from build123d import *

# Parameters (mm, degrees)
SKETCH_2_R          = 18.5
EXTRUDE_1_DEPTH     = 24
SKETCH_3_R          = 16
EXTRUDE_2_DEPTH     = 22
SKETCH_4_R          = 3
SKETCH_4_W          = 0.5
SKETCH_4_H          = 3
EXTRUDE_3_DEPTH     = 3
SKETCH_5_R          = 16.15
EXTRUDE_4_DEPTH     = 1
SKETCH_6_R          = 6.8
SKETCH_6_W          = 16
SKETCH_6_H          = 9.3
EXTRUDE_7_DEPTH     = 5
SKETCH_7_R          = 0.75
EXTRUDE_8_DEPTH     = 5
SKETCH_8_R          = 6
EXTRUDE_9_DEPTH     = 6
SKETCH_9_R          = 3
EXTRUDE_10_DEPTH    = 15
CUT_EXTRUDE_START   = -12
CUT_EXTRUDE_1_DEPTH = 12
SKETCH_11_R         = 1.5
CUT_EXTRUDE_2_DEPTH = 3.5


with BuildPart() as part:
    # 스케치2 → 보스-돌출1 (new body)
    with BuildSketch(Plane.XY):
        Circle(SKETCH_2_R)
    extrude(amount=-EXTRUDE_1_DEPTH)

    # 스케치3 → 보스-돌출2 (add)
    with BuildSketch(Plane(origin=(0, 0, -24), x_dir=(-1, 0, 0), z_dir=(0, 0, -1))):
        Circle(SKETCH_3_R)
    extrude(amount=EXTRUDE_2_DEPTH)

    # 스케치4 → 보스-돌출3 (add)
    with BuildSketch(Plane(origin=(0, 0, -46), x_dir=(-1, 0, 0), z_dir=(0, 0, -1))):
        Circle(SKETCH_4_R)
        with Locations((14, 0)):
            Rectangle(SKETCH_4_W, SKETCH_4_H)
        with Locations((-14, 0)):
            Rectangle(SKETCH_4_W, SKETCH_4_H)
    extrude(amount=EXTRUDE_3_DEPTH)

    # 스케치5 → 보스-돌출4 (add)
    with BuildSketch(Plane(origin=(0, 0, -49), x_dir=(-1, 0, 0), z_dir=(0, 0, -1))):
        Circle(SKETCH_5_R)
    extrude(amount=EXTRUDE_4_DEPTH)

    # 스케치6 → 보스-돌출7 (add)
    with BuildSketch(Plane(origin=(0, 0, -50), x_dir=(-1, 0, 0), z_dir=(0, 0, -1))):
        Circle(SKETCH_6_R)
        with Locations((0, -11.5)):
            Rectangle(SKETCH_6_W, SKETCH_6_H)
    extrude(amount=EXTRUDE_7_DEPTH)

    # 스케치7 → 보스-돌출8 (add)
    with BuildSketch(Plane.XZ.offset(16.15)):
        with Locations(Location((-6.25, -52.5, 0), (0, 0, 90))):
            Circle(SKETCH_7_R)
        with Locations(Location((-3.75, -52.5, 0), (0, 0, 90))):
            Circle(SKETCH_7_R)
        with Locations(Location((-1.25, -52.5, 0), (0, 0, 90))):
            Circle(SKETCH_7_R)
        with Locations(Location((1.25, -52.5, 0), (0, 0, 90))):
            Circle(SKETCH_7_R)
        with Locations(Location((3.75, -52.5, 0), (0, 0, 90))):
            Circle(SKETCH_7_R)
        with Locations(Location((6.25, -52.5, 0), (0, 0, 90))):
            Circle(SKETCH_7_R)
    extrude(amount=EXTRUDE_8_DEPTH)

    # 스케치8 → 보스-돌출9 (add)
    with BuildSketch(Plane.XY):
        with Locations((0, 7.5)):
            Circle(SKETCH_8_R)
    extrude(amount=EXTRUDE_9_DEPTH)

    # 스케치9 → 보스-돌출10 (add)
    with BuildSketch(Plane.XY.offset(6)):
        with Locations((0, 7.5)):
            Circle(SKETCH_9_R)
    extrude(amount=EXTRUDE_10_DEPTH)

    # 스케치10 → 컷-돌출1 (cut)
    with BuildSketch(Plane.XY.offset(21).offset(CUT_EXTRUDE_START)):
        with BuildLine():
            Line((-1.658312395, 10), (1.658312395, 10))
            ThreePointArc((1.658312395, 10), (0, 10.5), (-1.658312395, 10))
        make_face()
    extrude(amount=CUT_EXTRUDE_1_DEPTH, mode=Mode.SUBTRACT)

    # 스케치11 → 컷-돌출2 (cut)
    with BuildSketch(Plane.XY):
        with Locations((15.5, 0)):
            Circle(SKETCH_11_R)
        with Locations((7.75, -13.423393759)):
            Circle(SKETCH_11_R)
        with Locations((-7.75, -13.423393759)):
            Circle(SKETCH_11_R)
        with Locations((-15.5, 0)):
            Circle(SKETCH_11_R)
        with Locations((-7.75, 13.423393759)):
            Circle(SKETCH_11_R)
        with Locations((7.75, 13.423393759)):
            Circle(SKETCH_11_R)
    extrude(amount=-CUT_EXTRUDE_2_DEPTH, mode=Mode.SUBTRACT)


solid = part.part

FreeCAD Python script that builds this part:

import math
import FreeCAD as App
import Part
import Sketcher

doc = App.newDocument("Part")
params = doc.addObject("Spreadsheet::Sheet", "Params")
for row, (alias, value) in enumerate([
    ("sketch1_diameter", "37 mm"),
    ("pad1_length", "24 mm"),
    ("sketch2_diameter", "32 mm"),
    ("pad2_length", "22 mm"),
    ("sketch3_diameter", "6 mm"),
    ("sketch3_height", "3 mm"),
    ("sketch3_width", "0.5 mm"),
    ("pad3_length", "3 mm"),
    ("sketch4_diameter", "32.3 mm"),
    ("pad4_length", "1 mm"),
    ("sketch5_diameter", "13.6 mm"),
    ("sketch5_width", "16 mm"),
    ("sketch5_height", "9.3 mm"),
    ("pad5_length", "5 mm"),
    ("sketch6_diameter", "1.5 mm"),
    ("pad6_length", "5 mm"),
    ("sketch7_diameter", "12 mm"),
    ("pad7_length", "6 mm"),
    ("sketch8_diameter", "6 mm"),
    ("pad8_length", "15 mm"),
    ("sketch9_radius", "3 mm"),
    ("pocket1_length", "12 mm"),
    ("sketch10_diameter", "3 mm"),
    ("pocket2_length", "3.5 mm"),
], start=1):
    params.set(f"A{row}", alias)
    params.set(f"B{row}", "=" + value)
    params.setAlias(f"B{row}", alias)

body = doc.addObject("PartDesign::Body", "Body")

# Sketch on XY plane
sketch1 = body.newObject("Sketcher::SketchObject", "Sketch")
sketch1.AttachmentSupport = (doc.getObject("XY_Plane"), [""])
sketch1.MapMode = "FlatFace"
sketch1.addGeometry(Part.Circle(App.Vector(0, 0, 0), App.Vector(0, 0, 1), 18.5), False)
sketch1.addConstraint(Sketcher.Constraint("Coincident", 0, 3, -1, 1))
sketch1.addConstraint(Sketcher.Constraint("Diameter", 0, 37.0))
sketch1.setExpression("Constraints[1]", "Params.sketch1_diameter")
pad1 = body.newObject("PartDesign::Pad", "Pad")
pad1.Profile = sketch1
pad1.setExpression("Length", "Params.pad1_length")
pad1.Reversed = True

# Sketch on XY plane
sketch2 = body.newObject("Sketcher::SketchObject", "Sketch001")
sketch2.AttachmentSupport = (doc.getObject("XY_Plane"), [""])
sketch2.MapMode = "FlatFace"
sketch2.AttachmentOffset = App.Placement(App.Vector(0, 0, -24), App.Rotation())
sketch2.addGeometry(Part.Circle(App.Vector(0, 0, 0), App.Vector(0, 0, 1), 16), False)
sketch2.addConstraint(Sketcher.Constraint("Coincident", 0, 3, -1, 1))
sketch2.addConstraint(Sketcher.Constraint("Diameter", 0, 32.0))
sketch2.setExpression("Constraints[1]", "Params.sketch2_diameter")
pad2 = body.newObject("PartDesign::Pad", "Pad001")
pad2.Profile = sketch2
pad2.setExpression("Length", "Params.pad2_length")
pad2.Reversed = True

# Sketch on XY plane
sketch3 = body.newObject("Sketcher::SketchObject", "Sketch002")
sketch3.AttachmentSupport = (doc.getObject("XY_Plane"), [""])
sketch3.MapMode = "FlatFace"
sketch3.AttachmentOffset = App.Placement(App.Vector(0, 0, -46), App.Rotation())
sketch3.addGeometry(Part.Circle(App.Vector(0, 0, 0), App.Vector(0, 0, 1), 3), False)
sketch3.addGeometry(Part.LineSegment(App.Vector(-13.75, 1.5, 0), App.Vector(-13.75, -1.5, 0)), False)
sketch3.addGeometry(Part.LineSegment(App.Vector(-13.75, -1.5, 0), App.Vector(-14.25, -1.5, 0)), False)
sketch3.addGeometry(Part.LineSegment(App.Vector(-14.25, -1.5, 0), App.Vector(-14.25, 1.5, 0)), False)
sketch3.addGeometry(Part.LineSegment(App.Vector(-14.25, 1.5, 0), App.Vector(-13.75, 1.5, 0)), False)
sketch3.addGeometry(Part.LineSegment(App.Vector(14.25, 1.5, 0), App.Vector(14.25, -1.5, 0)), False)
sketch3.addGeometry(Part.LineSegment(App.Vector(14.25, -1.5, 0), App.Vector(13.75, -1.5, 0)), False)
sketch3.addGeometry(Part.LineSegment(App.Vector(13.75, -1.5, 0), App.Vector(13.75, 1.5, 0)), False)
sketch3.addGeometry(Part.LineSegment(App.Vector(13.75, 1.5, 0), App.Vector(14.25, 1.5, 0)), False)
sketch3.addConstraint(Sketcher.Constraint("Coincident", 1, 2, 2, 1))
sketch3.addConstraint(Sketcher.Constraint("Coincident", 2, 2, 3, 1))
sketch3.addConstraint(Sketcher.Constraint("Coincident", 3, 2, 4, 1))
sketch3.addConstraint(Sketcher.Constraint("Coincident", 4, 2, 1, 1))
sketch3.addConstraint(Sketcher.Constraint("Coincident", 5, 2, 6, 1))
sketch3.addConstraint(Sketcher.Constraint("Coincident", 6, 2, 7, 1))
sketch3.addConstraint(Sketcher.Constraint("Coincident", 7, 2, 8, 1))
sketch3.addConstraint(Sketcher.Constraint("Coincident", 8, 2, 5, 1))
sketch3.addConstraint(Sketcher.Constraint("Vertical", 1))
sketch3.addConstraint(Sketcher.Constraint("Horizontal", 2))
sketch3.addConstraint(Sketcher.Constraint("Vertical", 3))
sketch3.addConstraint(Sketcher.Constraint("Horizontal", 4))
sketch3.addConstraint(Sketcher.Constraint("Vertical", 5))
sketch3.addConstraint(Sketcher.Constraint("Horizontal", 6))
sketch3.addConstraint(Sketcher.Constraint("Vertical", 7))
sketch3.addConstraint(Sketcher.Constraint("Horizontal", 8))
sketch3.addConstraint(Sketcher.Constraint("Coincident", 0, 3, -1, 1))
sketch3.addConstraint(Sketcher.Constraint("Symmetric", 3, 2, 5, 2, -1, 1))
sketch3.addConstraint(Sketcher.Constraint("Symmetric", 1, 2, 7, 2, -1, 1))
sketch3.addConstraint(Sketcher.Constraint("Horizontal", 2, 2, 5, 2))
sketch3.addConstraint(Sketcher.Constraint("Diameter", 0, 6.0))
sketch3.addConstraint(Sketcher.Constraint("DistanceY", 1, 2, 1, 1, 3.0))
sketch3.addConstraint(Sketcher.Constraint("DistanceX", 2, 2, 2, 1, 0.5))
sketch3.addConstraint(Sketcher.Constraint("DistanceX", 1, 2, 5, 2, 28.0))
sketch3.setExpression("Constraints[20]", "Params.sketch3_diameter")
sketch3.setExpression("Constraints[21]", "Params.sketch3_height")
sketch3.setExpression("Constraints[22]", "Params.sketch3_width")
pad3 = body.newObject("PartDesign::Pad", "Pad002")
pad3.Profile = sketch3
pad3.setExpression("Length", "Params.pad3_length")
pad3.Reversed = True

# Sketch on XY plane
sketch4 = body.newObject("Sketcher::SketchObject", "Sketch003")
sketch4.AttachmentSupport = (doc.getObject("XY_Plane"), [""])
sketch4.MapMode = "FlatFace"
sketch4.AttachmentOffset = App.Placement(App.Vector(0, 0, -49), App.Rotation())
sketch4.addGeometry(Part.Circle(App.Vector(0, 0, 0), App.Vector(0, 0, 1), 16.15), False)
sketch4.addConstraint(Sketcher.Constraint("Coincident", 0, 3, -1, 1))
sketch4.addConstraint(Sketcher.Constraint("Diameter", 0, 32.3))
sketch4.setExpression("Constraints[1]", "Params.sketch4_diameter")
pad4 = body.newObject("PartDesign::Pad", "Pad003")
pad4.Profile = sketch4
pad4.setExpression("Length", "Params.pad4_length")
pad4.Reversed = True

# Sketch on XY plane
sketch5 = body.newObject("Sketcher::SketchObject", "Sketch004")
sketch5.AttachmentSupport = (doc.getObject("XY_Plane"), [""])
sketch5.MapMode = "FlatFace"
sketch5.AttachmentOffset = App.Placement(App.Vector(0, 0, -50), App.Rotation())
sketch5.addGeometry(Part.Circle(App.Vector(0, 0, 0), App.Vector(0, 0, 1), 6.8), False)
sketch5.addGeometry(Part.LineSegment(App.Vector(8, -6.85, 0), App.Vector(8, -16.15, 0)), False)
sketch5.addGeometry(Part.LineSegment(App.Vector(8, -16.15, 0), App.Vector(-8, -16.15, 0)), False)
sketch5.addGeometry(Part.LineSegment(App.Vector(-8, -16.15, 0), App.Vector(-8, -6.85, 0)), False)
sketch5.addGeometry(Part.LineSegment(App.Vector(-8, -6.85, 0), App.Vector(8, -6.85, 0)), False)
sketch5.addConstraint(Sketcher.Constraint("Coincident", 1, 2, 2, 1))
sketch5.addConstraint(Sketcher.Constraint("Coincident", 2, 2, 3, 1))
sketch5.addConstraint(Sketcher.Constraint("Coincident", 3, 2, 4, 1))
sketch5.addConstraint(Sketcher.Constraint("Coincident", 4, 2, 1, 1))
sketch5.addConstraint(Sketcher.Constraint("Vertical", 1))
sketch5.addConstraint(Sketcher.Constraint("Horizontal", 2))
sketch5.addConstraint(Sketcher.Constraint("Vertical", 3))
sketch5.addConstraint(Sketcher.Constraint("Horizontal", 4))
sketch5.addConstraint(Sketcher.Constraint("Coincident", 0, 3, -1, 1))
sketch5.addConstraint(Sketcher.Constraint("Diameter", 0, 13.6))
sketch5.addConstraint(Sketcher.Constraint("DistanceX", 2, 2, 2, 1, 16.0))
sketch5.addConstraint(Sketcher.Constraint("DistanceY", 1, 2, 1, 1, 9.3))
sketch5.addConstraint(Sketcher.Constraint("DistanceX", -1, 1, 1, 2, 8.0))
sketch5.addConstraint(Sketcher.Constraint("DistanceY", 1, 2, -1, 1, 16.15))
sketch5.setExpression("Constraints[9]", "Params.sketch5_diameter")
sketch5.setExpression("Constraints[10]", "Params.sketch5_width")
sketch5.setExpression("Constraints[11]", "Params.sketch5_height")
pad5 = body.newObject("PartDesign::Pad", "Pad004")
pad5.Profile = sketch5
pad5.setExpression("Length", "Params.pad5_length")
pad5.Reversed = True

# Sketch on XZ plane
sketch6 = body.newObject("Sketcher::SketchObject", "Sketch005")
sketch6.AttachmentSupport = (doc.getObject("XZ_Plane"), [""])
sketch6.MapMode = "FlatFace"
sketch6.AttachmentOffset = App.Placement(App.Vector(0, 0, 16.15), App.Rotation())
sketch6.addGeometry(Part.Circle(App.Vector(-6.25, -52.5, 0), App.Vector(0, 0, 1), 0.75), False)
sketch6.addGeometry(Part.Circle(App.Vector(-3.75, -52.5, 0), App.Vector(0, 0, 1), 0.75), False)
sketch6.addGeometry(Part.Circle(App.Vector(-1.25, -52.5, 0), App.Vector(0, 0, 1), 0.75), False)
sketch6.addGeometry(Part.Circle(App.Vector(1.25, -52.5, 0), App.Vector(0, 0, 1), 0.75), False)
sketch6.addGeometry(Part.Circle(App.Vector(3.75, -52.5, 0), App.Vector(0, 0, 1), 0.75), False)
sketch6.addGeometry(Part.Circle(App.Vector(6.25, -52.5, 0), App.Vector(0, 0, 1), 0.75), False)
sketch6.addConstraint(Sketcher.Constraint("Equal", 0, 1))
sketch6.addConstraint(Sketcher.Constraint("Equal", 1, 2))
sketch6.addConstraint(Sketcher.Constraint("Equal", 2, 3))
sketch6.addConstraint(Sketcher.Constraint("Equal", 3, 4))
sketch6.addConstraint(Sketcher.Constraint("Equal", 4, 5))
sketch6.addConstraint(Sketcher.Constraint("Symmetric", 2, 3, 3, 3, -2))
sketch6.addConstraint(Sketcher.Constraint("Symmetric", 1, 3, 4, 3, -2))
sketch6.addConstraint(Sketcher.Constraint("Symmetric", 0, 3, 5, 3, -2))
sketch6.addConstraint(Sketcher.Constraint("Horizontal", 0, 3, 1, 3))
sketch6.addConstraint(Sketcher.Constraint("Horizontal", 1, 3, 2, 3))
sketch6.addConstraint(Sketcher.Constraint("Diameter", 0, 1.5))
sketch6.addConstraint(Sketcher.Constraint("DistanceX", 0, 3, 2, 3, 5.0))
sketch6.addConstraint(Sketcher.Constraint("DistanceX", 1, 3, 3, 3, 5.0))
sketch6.addConstraint(Sketcher.Constraint("DistanceY", 0, 3, -1, 1, 52.5))
sketch6.addConstraint(Sketcher.Constraint("DistanceX", 0, 3, 1, 3, 2.5))
sketch6.setExpression("Constraints[10]", "Params.sketch6_diameter")
pad6 = body.newObject("PartDesign::Pad", "Pad005")
pad6.Profile = sketch6
pad6.setExpression("Length", "Params.pad6_length")

# Sketch on XY plane
sketch7 = body.newObject("Sketcher::SketchObject", "Sketch006")
sketch7.AttachmentSupport = (doc.getObject("XY_Plane"), [""])
sketch7.MapMode = "FlatFace"
sketch7.addGeometry(Part.Circle(App.Vector(0, 7.5, 0), App.Vector(0, 0, 1), 6), False)
sketch7.addConstraint(Sketcher.Constraint("PointOnObject", 0, 3, -2))
sketch7.addConstraint(Sketcher.Constraint("Diameter", 0, 12.0))
sketch7.addConstraint(Sketcher.Constraint("DistanceY", -1, 1, 0, 3, 7.5))
sketch7.setExpression("Constraints[1]", "Params.sketch7_diameter")
pad7 = body.newObject("PartDesign::Pad", "Pad006")
pad7.Profile = sketch7
pad7.setExpression("Length", "Params.pad7_length")

# Sketch on XY plane
sketch8 = body.newObject("Sketcher::SketchObject", "Sketch007")
sketch8.AttachmentSupport = (doc.getObject("XY_Plane"), [""])
sketch8.MapMode = "FlatFace"
sketch8.AttachmentOffset = App.Placement(App.Vector(0, 0, 6), App.Rotation())
sketch8.addGeometry(Part.Circle(App.Vector(0, 7.5, 0), App.Vector(0, 0, 1), 3), False)
sketch8.addConstraint(Sketcher.Constraint("PointOnObject", 0, 3, -2))
sketch8.addConstraint(Sketcher.Constraint("Diameter", 0, 6.0))
sketch8.addConstraint(Sketcher.Constraint("DistanceY", -1, 1, 0, 3, 7.5))
sketch8.setExpression("Constraints[1]", "Params.sketch8_diameter")
pad8 = body.newObject("PartDesign::Pad", "Pad007")
pad8.Profile = sketch8
pad8.setExpression("Length", "Params.pad8_length")

# Sketch on XY plane
sketch9 = body.newObject("Sketcher::SketchObject", "Sketch008")
sketch9.AttachmentSupport = (doc.getObject("XY_Plane"), [""])
sketch9.MapMode = "FlatFace"
sketch9.AttachmentOffset = App.Placement(App.Vector(0, 0, 9), App.Rotation())
sketch9.addGeometry(Part.LineSegment(App.Vector(-1.658312, 10, 0), App.Vector(1.658312, 10, 0)), False)
sketch9.addGeometry(Part.ArcOfCircle(Part.Circle(App.Vector(0, 7.5, 0), App.Vector(0, 0, 1), 3), math.radians(56.44269), math.radians(123.55731)), False)
sketch9.addConstraint(Sketcher.Constraint("Coincident", 0, 1, 1, 2))
sketch9.addConstraint(Sketcher.Constraint("Coincident", 1, 1, 0, 2))
sketch9.addConstraint(Sketcher.Constraint("Horizontal", 0))
sketch9.addConstraint(Sketcher.Constraint("PointOnObject", 1, 3, -2))
sketch9.addConstraint(Sketcher.Constraint("Radius", 1, 3.0))
sketch9.addConstraint(Sketcher.Constraint("DistanceY", -1, 1, 0, 1, 10.0))
sketch9.addConstraint(Sketcher.Constraint("DistanceY", -1, 1, 1, 3, 7.5))
sketch9.setExpression("Constraints[4]", "Params.sketch9_radius")
pocket1 = body.newObject("PartDesign::Pocket", "Pocket")
pocket1.Profile = sketch9
pocket1.setExpression("Length", "Params.pocket1_length")
pocket1.Reversed = True

# Sketch on XY plane
sketch10 = body.newObject("Sketcher::SketchObject", "Sketch009")
sketch10.AttachmentSupport = (doc.getObject("XY_Plane"), [""])
sketch10.MapMode = "FlatFace"
sketch10.addGeometry(Part.Circle(App.Vector(15.5, 0, 0), App.Vector(0, 0, 1), 1.5), False)
sketch10.addGeometry(Part.Circle(App.Vector(7.75, -13.423394, 0), App.Vector(0, 0, 1), 1.5), False)
sketch10.addGeometry(Part.Circle(App.Vector(-7.75, -13.423394, 0), App.Vector(0, 0, 1), 1.5), False)
sketch10.addGeometry(Part.Circle(App.Vector(-15.5, 0, 0), App.Vector(0, 0, 1), 1.5), False)
sketch10.addGeometry(Part.Circle(App.Vector(-7.75, 13.423394, 0), App.Vector(0, 0, 1), 1.5), False)
sketch10.addGeometry(Part.Circle(App.Vector(7.75, 13.423394, 0), App.Vector(0, 0, 1), 1.5), False)
sketch10.addConstraint(Sketcher.Constraint("Equal", 0, 1))
sketch10.addConstraint(Sketcher.Constraint("Equal", 1, 2))
sketch10.addConstraint(Sketcher.Constraint("Equal", 2, 3))
sketch10.addConstraint(Sketcher.Constraint("Equal", 3, 4))
sketch10.addConstraint(Sketcher.Constraint("Equal", 4, 5))
sketch10.addConstraint(Sketcher.Constraint("Symmetric", 0, 3, 3, 3, -1, 1))
sketch10.addConstraint(Sketcher.Constraint("Symmetric", 1, 3, 4, 3, -1, 1))
sketch10.addConstraint(Sketcher.Constraint("Symmetric", 2, 3, 5, 3, -1, 1))
sketch10.addConstraint(Sketcher.Constraint("Symmetric", 1, 3, 2, 3, -2))
sketch10.addConstraint(Sketcher.Constraint("PointOnObject", 0, 3, -1))
sketch10.addConstraint(Sketcher.Constraint("Diameter", 0, 3.0))
sketch10.addConstraint(Sketcher.Constraint("DistanceX", 3, 3, 0, 3, 31.0))
sketch10.addConstraint(Sketcher.Constraint("DistanceX", 2, 3, 1, 3, 15.5))
sketch10.addConstraint(Sketcher.Constraint("DistanceY", 1, 3, -1, 1, 13.423394))
sketch10.setExpression("Constraints[10]", "Params.sketch10_diameter")
pocket2 = body.newObject("PartDesign::Pocket", "Pocket001")
pocket2.Profile = sketch10
pocket2.setExpression("Length", "Params.pocket2_length")

doc.recompute()
